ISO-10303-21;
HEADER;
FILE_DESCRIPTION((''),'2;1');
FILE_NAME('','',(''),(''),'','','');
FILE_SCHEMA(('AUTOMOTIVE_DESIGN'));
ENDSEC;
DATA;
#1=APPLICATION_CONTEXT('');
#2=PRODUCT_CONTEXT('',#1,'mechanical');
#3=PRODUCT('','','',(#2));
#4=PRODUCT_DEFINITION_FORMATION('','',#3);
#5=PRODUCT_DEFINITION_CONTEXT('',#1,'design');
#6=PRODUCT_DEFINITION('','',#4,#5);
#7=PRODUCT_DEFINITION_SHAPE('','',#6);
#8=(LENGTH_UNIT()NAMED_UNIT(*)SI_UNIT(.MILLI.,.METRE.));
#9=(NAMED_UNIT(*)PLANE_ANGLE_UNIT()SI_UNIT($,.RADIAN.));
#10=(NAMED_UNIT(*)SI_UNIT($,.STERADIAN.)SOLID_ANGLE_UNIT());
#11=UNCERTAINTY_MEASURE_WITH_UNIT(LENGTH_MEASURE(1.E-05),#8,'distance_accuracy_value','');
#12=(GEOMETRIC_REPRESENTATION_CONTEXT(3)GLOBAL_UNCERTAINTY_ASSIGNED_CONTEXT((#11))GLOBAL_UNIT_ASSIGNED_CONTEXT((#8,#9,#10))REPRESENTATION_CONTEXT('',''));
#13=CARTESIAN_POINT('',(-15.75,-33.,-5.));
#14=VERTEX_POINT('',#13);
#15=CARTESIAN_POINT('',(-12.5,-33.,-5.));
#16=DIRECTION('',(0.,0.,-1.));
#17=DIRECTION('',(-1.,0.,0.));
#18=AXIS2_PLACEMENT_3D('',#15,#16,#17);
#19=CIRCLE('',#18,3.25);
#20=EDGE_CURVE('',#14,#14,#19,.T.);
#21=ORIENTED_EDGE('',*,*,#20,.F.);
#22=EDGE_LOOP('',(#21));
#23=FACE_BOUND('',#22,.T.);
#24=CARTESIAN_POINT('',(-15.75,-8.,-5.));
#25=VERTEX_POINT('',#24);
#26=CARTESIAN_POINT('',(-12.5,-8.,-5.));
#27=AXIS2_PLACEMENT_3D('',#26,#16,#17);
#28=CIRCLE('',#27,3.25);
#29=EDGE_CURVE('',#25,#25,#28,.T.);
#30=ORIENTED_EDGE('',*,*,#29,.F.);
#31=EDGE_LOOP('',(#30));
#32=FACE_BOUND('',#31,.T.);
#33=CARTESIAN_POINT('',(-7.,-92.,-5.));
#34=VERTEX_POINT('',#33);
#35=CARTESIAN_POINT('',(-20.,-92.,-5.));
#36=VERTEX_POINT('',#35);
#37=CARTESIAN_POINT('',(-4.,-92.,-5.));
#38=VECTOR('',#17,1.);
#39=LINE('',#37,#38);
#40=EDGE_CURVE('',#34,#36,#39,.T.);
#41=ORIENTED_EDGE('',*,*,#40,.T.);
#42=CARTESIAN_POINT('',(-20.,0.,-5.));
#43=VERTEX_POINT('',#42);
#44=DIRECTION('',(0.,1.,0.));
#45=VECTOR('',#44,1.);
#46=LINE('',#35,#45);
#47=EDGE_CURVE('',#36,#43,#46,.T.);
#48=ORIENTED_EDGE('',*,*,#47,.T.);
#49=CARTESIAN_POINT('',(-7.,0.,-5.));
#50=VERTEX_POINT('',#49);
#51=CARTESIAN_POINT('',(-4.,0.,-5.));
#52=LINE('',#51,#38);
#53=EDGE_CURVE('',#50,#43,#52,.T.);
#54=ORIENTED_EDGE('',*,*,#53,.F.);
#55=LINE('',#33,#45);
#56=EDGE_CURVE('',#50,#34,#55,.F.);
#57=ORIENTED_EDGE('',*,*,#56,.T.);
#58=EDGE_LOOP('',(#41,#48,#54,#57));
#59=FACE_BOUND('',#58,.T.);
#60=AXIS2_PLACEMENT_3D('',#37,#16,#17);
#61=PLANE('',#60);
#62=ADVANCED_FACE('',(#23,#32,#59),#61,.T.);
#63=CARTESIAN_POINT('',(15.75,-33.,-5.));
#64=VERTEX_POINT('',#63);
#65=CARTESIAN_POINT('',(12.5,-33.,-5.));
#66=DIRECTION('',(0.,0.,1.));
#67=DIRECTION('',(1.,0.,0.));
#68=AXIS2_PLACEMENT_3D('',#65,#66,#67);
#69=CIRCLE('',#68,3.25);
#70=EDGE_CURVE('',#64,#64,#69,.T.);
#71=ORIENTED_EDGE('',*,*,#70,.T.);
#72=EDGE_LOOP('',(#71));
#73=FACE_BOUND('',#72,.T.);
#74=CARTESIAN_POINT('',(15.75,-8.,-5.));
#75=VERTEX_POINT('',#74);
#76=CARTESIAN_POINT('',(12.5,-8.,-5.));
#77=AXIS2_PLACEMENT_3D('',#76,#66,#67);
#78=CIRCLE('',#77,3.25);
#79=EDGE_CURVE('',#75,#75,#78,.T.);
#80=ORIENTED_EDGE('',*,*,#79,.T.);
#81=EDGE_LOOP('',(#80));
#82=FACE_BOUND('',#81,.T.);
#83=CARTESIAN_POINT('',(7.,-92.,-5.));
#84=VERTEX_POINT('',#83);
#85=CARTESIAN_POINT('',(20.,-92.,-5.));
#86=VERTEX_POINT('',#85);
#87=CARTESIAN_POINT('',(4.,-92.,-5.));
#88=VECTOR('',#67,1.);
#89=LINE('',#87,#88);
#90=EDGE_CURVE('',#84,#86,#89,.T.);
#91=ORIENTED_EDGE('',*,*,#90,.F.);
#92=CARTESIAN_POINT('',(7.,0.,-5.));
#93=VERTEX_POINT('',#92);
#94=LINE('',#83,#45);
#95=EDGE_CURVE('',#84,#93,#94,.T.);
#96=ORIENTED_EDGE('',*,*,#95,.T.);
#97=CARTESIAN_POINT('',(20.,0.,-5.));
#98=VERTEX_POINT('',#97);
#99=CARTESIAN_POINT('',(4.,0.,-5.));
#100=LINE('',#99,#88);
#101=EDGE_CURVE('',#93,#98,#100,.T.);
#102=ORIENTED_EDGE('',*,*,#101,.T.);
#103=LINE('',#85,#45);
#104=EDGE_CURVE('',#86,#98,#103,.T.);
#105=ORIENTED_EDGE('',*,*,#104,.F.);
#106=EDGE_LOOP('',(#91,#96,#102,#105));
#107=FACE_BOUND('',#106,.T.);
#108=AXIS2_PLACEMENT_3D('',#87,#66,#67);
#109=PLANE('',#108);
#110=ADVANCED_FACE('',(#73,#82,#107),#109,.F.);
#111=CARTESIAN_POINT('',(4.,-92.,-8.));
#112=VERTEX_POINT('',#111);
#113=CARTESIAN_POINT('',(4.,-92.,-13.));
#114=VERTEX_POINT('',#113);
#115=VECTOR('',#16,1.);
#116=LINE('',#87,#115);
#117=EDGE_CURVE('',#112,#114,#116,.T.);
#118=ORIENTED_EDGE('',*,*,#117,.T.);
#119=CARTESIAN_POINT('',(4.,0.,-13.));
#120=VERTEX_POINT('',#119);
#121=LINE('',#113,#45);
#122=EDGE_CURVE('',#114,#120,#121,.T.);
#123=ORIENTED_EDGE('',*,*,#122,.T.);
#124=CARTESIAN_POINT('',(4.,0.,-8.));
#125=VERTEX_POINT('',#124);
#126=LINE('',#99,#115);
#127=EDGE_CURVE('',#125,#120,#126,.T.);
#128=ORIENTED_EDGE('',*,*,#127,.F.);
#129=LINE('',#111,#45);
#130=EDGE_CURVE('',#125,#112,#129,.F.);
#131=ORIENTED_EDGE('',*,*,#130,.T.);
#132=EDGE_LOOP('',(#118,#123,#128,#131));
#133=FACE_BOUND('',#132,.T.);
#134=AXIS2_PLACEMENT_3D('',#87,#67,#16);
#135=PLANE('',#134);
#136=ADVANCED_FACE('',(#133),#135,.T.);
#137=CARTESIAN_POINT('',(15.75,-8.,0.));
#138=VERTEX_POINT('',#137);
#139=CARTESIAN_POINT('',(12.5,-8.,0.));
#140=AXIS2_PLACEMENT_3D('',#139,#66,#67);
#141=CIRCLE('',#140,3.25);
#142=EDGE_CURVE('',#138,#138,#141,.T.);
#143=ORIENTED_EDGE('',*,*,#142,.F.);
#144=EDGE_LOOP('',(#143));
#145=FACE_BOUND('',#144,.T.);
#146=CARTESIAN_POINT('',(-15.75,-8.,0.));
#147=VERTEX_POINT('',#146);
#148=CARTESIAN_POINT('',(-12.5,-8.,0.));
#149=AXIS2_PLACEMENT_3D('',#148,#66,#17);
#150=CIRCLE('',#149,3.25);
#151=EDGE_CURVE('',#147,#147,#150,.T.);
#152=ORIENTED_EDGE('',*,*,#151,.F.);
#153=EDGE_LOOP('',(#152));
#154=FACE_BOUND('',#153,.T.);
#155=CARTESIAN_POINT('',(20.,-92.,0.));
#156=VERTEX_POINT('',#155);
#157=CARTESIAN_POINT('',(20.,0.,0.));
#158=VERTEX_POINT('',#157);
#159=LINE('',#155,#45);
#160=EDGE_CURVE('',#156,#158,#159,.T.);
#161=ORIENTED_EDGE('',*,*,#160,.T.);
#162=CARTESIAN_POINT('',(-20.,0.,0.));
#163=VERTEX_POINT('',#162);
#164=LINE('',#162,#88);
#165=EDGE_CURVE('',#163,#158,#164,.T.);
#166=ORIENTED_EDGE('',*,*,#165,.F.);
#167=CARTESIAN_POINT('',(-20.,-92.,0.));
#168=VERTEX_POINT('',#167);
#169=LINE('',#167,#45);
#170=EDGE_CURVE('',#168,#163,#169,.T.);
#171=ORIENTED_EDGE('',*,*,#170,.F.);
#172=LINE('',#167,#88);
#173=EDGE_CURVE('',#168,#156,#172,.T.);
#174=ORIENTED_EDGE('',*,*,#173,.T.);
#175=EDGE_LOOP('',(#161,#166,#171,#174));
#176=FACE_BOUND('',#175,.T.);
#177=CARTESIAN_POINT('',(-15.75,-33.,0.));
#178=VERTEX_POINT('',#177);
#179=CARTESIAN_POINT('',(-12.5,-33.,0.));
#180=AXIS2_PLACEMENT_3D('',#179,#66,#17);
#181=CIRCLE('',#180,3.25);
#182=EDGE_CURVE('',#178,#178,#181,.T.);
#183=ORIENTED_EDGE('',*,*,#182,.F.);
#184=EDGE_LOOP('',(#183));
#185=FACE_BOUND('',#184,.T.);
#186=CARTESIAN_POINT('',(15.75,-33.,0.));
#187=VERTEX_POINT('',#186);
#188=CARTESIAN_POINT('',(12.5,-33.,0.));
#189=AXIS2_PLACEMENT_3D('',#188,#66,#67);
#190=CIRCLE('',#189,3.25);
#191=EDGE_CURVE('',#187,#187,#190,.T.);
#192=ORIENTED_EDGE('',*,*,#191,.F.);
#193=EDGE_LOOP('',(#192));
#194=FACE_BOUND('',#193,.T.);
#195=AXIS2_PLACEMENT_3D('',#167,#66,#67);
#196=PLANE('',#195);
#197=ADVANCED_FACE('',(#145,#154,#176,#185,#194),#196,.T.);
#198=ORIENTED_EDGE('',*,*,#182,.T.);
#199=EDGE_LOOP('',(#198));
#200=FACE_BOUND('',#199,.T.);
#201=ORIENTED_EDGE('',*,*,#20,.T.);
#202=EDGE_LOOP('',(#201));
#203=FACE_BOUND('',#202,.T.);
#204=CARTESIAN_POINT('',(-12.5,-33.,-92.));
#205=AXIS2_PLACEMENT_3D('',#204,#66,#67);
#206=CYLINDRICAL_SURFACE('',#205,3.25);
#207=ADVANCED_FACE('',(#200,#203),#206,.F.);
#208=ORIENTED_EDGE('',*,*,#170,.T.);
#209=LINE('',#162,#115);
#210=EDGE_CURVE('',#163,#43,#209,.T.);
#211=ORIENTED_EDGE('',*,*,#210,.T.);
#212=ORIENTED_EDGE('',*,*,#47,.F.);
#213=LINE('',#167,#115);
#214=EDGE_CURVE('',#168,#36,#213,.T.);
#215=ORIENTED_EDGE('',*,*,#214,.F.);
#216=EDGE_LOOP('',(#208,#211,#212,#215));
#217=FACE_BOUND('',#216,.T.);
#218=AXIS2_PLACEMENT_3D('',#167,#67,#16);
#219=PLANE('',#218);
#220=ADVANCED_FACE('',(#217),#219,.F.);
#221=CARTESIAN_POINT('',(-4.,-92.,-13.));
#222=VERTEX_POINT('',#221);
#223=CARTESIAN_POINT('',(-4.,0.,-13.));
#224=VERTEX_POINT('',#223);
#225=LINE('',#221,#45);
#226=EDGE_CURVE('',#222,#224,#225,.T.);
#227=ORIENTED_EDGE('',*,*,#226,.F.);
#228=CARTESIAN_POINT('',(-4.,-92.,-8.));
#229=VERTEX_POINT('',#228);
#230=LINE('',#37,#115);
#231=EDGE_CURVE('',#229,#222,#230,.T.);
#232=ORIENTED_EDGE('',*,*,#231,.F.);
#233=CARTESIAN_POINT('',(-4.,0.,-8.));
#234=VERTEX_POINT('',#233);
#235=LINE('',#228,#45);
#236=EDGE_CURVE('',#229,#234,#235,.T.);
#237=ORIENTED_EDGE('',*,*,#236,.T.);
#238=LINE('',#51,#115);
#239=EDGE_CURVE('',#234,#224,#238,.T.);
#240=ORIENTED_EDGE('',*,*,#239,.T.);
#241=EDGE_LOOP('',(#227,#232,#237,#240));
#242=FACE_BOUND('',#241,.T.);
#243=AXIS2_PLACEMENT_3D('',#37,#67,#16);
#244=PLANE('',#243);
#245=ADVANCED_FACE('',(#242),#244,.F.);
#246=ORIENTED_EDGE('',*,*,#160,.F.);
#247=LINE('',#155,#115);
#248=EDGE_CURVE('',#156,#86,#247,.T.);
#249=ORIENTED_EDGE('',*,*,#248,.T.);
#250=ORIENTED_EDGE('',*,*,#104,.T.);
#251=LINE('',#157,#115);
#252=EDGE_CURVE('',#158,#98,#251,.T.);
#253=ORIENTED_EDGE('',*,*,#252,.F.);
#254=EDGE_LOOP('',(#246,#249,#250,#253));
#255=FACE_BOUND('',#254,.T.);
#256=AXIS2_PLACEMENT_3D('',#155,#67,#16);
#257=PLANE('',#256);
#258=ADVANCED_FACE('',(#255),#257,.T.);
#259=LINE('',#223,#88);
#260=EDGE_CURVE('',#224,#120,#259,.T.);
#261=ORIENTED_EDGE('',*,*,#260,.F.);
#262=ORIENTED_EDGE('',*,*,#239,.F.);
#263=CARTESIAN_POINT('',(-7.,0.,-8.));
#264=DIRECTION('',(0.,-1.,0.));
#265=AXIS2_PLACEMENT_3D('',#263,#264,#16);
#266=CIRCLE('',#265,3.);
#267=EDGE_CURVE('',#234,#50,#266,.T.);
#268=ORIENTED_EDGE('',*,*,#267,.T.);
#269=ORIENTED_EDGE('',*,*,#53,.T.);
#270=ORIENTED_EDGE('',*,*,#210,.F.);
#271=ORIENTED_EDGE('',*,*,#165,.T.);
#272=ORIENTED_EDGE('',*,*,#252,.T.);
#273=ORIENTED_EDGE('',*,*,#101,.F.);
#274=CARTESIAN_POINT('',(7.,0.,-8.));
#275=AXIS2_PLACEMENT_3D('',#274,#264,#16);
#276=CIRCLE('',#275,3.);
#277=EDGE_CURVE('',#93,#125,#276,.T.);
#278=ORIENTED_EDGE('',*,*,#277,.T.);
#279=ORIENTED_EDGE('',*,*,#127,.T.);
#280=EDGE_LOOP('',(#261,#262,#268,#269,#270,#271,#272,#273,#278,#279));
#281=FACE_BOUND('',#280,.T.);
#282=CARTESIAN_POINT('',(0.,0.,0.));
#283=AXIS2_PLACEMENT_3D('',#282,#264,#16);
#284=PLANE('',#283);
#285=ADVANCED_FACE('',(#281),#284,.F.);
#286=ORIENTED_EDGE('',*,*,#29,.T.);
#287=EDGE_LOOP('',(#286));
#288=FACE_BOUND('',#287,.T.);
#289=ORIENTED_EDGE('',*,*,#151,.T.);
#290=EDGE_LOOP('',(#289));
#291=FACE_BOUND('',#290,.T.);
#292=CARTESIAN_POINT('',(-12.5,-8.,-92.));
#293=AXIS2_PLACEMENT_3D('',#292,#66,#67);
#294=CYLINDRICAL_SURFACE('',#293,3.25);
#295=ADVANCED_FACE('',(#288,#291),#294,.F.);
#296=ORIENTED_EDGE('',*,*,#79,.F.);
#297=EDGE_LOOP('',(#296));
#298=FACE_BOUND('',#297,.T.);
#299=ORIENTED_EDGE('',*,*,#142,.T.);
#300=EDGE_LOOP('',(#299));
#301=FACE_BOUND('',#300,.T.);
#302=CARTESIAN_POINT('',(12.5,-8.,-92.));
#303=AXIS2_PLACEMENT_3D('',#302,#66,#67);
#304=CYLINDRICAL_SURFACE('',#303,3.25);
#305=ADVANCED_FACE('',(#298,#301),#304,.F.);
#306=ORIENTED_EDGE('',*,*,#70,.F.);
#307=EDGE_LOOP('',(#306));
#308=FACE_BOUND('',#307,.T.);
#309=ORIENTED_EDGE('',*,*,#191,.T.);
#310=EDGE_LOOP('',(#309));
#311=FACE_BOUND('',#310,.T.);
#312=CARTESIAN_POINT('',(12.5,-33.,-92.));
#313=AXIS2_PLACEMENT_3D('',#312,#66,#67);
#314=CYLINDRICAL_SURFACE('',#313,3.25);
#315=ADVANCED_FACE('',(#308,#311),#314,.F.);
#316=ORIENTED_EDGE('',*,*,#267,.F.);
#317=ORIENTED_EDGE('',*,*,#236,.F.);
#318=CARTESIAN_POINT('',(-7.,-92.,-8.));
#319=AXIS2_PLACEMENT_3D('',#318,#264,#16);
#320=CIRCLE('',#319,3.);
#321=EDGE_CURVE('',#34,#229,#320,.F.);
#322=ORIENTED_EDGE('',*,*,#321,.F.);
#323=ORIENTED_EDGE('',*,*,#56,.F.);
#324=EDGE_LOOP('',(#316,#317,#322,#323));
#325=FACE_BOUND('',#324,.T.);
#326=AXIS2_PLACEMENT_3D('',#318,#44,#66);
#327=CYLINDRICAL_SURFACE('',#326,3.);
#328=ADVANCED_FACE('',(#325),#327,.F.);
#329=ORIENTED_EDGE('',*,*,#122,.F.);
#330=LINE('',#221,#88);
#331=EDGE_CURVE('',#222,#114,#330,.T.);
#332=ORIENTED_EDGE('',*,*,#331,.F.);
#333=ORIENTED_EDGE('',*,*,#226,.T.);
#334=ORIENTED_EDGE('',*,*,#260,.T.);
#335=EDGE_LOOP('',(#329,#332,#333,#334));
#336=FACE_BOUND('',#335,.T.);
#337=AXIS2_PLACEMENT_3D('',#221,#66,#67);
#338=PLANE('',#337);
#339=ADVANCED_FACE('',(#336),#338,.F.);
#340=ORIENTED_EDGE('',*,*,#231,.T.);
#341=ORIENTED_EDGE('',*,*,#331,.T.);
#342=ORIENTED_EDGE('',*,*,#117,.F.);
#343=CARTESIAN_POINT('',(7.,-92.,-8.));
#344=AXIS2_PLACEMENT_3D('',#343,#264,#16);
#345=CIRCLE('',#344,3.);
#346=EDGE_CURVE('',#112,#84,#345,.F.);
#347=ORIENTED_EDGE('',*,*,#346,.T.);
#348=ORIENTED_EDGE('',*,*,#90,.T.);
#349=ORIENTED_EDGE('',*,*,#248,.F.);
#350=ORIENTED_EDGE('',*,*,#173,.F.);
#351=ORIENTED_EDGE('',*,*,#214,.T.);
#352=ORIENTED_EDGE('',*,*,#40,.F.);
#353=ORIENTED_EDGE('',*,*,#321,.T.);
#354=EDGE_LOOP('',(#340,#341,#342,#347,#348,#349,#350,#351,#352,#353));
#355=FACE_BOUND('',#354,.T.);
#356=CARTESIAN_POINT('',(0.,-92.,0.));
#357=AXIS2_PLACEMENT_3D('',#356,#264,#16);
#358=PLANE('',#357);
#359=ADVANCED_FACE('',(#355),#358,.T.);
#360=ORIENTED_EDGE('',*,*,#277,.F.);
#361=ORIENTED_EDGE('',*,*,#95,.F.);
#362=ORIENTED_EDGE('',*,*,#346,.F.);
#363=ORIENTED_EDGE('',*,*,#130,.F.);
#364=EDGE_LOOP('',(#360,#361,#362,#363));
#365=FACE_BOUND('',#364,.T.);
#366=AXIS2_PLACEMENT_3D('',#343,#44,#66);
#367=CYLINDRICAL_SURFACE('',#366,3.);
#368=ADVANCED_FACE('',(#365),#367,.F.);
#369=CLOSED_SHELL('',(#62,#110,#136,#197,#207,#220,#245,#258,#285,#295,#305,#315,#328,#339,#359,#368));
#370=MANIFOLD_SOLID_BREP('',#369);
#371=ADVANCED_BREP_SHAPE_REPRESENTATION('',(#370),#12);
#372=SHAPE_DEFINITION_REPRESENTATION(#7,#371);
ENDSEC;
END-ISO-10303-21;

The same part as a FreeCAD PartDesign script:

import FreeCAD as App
import Part
import Sketcher
Q = App.Units.Quantity


def edges_at(feature, points):
    """Names of the edges that pass closest to the given points."""
    edges = feature.Shape.Edges
    near = lambda p: min(range(len(edges)), key=lambda i: edges[i].distToShape(Part.Vertex(*p))[0])
    return sorted({f"Edge{near(p) + 1}" for p in points})

doc = App.newDocument("Part")
params = doc.addObject("Spreadsheet::Sheet", "Params")
for row, (alias, value) in enumerate([
    ("sketch1_width", "16 mm"),
    ("sketch1_width2", "40 mm"),
    ("sketch1_height", "5 mm"),
    ("pad1_length", "92 mm"),
    ("fillet_radius", "3 mm"),
    ("sketch2_diameter", "6.5 mm"),
    ("pocket1_length", "92 mm"),
], start=1):
    params.set(f"A{row}", alias)
    params.set(f"B{row}", "=" + value)
    params.setAlias(f"B{row}", alias)

body = doc.addObject("PartDesign::Body", "Body")

sketch1 = body.newObject("Sketcher::SketchObject", "Sketch")
sketch1.AttachmentSupport = (doc.getObject("XZ_Plane"), [""])
sketch1.MapMode = "FlatFace"
sketch1.addGeometry([
    Part.LineSegment(App.Vector(-4, -13, 0), App.Vector(-4, -5, 0)),
    Part.LineSegment(App.Vector(-4, -5, 0), App.Vector(-20, -5, 0)),
    Part.LineSegment(App.Vector(-20, -5, 0), App.Vector(-20, 0, 0)),
    Part.LineSegment(App.Vector(-20, 0, 0), App.Vector(20, 0, 0)),
    Part.LineSegment(App.Vector(20, 0, 0), App.Vector(20, -5, 0)),
    Part.LineSegment(App.Vector(20, -5, 0), App.Vector(4, -5, 0)),
    Part.LineSegment(App.Vector(4, -5, 0), App.Vector(4, -13, 0)),
    Part.LineSegment(App.Vector(4, -13, 0), App.Vector(-4, -13, 0)),
], False)
sketch1.addConstraint([
    Sketcher.Constraint("Coincident", 0, 2, 1, 1),
    Sketcher.Constraint("Coincident", 1, 2, 2, 1),
    Sketcher.Constraint("Coincident", 2, 2, 3, 1),
    Sketcher.Constraint("Coincident", 3, 2, 4, 1),
    Sketcher.Constraint("Coincident", 4, 2, 5, 1),
    Sketcher.Constraint("Coincident", 5, 2, 6, 1),
    Sketcher.Constraint("Coincident", 6, 2, 7, 1),
    Sketcher.Constraint("Coincident", 7, 2, 0, 1),
    Sketcher.Constraint("Vertical", 0),
    Sketcher.Constraint("Horizontal", 1),
    Sketcher.Constraint("Vertical", 2),
    Sketcher.Constraint("Horizontal", 3),
    Sketcher.Constraint("Vertical", 4),
    Sketcher.Constraint("Horizontal", 5),
    Sketcher.Constraint("Vertical", 6),
    Sketcher.Constraint("Horizontal", 7),
    Sketcher.Constraint("Symmetric", 2, 2, 3, 2, -1, 1),
    Sketcher.Constraint("Symmetric", 0, 2, 5, 2, -2),
    Sketcher.Constraint("Equal", 7, 0),
    Sketcher.Constraint("DistanceX", 1, 2, 1, 1, Q("16 mm")),
    Sketcher.Constraint("DistanceX", 3, 1, 3, 2, Q("40 mm")),
    Sketcher.Constraint("DistanceY", 2, 1, 2, 2, Q("5 mm")),
])
sketch1.setExpression("Constraints[19]", "Params.sketch1_width")
sketch1.setExpression("Constraints[20]", "Params.sketch1_width2")
sketch1.setExpression("Constraints[21]", "Params.sketch1_height")
pad1 = body.newObject("PartDesign::Pad", "Pad")
pad1.Profile = sketch1
pad1.setExpression("Length", "Params.pad1_length")
doc.recompute()

fillet = body.newObject("PartDesign::Fillet", "Fillet")
fillet.Base = (pad1, edges_at(pad1, [(-4, -46, -5), (4, -46, -5)]))
fillet.setExpression("Radius", "Params.fillet_radius")

sketch2 = body.newObject("Sketcher::SketchObject", "Sketch001")
sketch2.AttachmentSupport = (doc.getObject("XY_Plane"), [""])
sketch2.MapMode = "FlatFace"
sketch2.addGeometry([
    Part.Circle(App.Vector(12.5, -8, 0), App.Vector(0, 0, 1), 3.25),
    Part.Circle(App.Vector(12.5, -33, 0), App.Vector(0, 0, 1), 3.25),
    Part.Circle(App.Vector(-12.5, -33, 0), App.Vector(0, 0, 1), 3.25),
    Part.Circle(App.Vector(-12.5, -8, 0), App.Vector(0, 0, 1), 3.25),
], False)
sketch2.addConstraint([
    Sketcher.Constraint("Equal", 0, 1),
    Sketcher.Constraint("Equal", 1, 2),
    Sketcher.Constraint("Equal", 2, 3),
    Sketcher.Constraint("Symmetric", 1, 3, 2, 3, -2),
    Sketcher.Constraint("Symmetric", 0, 3, 3, 3, -2),
    Sketcher.Constraint("Vertical", 0, 3, 1, 3),
    Sketcher.Constraint("Diameter", 0, Q("6.5 mm")),
    Sketcher.Constraint("DistanceY", 0, 3, -1, 1, Q("8 mm")),
    Sketcher.Constraint("DistanceY", 1, 3, -1, 1, Q("33 mm")),
    Sketcher.Constraint("DistanceX", 2, 3, 1, 3, Q("25 mm")),
])
sketch2.setExpression("Constraints[6]", "Params.sketch2_diameter")
pocket1 = body.newObject("PartDesign::Pocket", "Pocket")
pocket1.Profile = sketch2
pocket1.setExpression("Length", "Params.pocket1_length")

doc.recompute()
